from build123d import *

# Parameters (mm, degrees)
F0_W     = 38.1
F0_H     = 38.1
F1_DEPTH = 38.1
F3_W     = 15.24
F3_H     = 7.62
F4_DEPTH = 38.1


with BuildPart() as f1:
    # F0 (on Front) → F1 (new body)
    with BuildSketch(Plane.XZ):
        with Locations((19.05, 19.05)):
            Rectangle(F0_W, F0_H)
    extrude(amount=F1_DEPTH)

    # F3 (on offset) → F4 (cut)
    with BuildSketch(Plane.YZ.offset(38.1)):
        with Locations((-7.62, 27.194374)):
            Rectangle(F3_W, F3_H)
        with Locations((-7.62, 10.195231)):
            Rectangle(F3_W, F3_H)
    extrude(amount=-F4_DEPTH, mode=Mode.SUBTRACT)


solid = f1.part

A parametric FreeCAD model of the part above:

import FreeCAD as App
import Part
import Sketcher

V = App.Vector
Q = App.Units.Quantity


def add_polygon(sketch, points):
    """Adds a closed chain of lines whose ends are joined by coincident constraints."""
    first, n = sketch.GeometryCount, len(points)
    for a, b in zip(points, points[1:] + points[:1]):
        sketch.addGeometry(Part.LineSegment(App.Vector(*a, 0), App.Vector(*b, 0)), False)
    for i in range(n):
        sketch.addConstraint(Sketcher.Constraint("Coincident", first + i, 2, first + (i + 1) % n, 1))

doc = App.newDocument("Part")
params = doc.addObject("Spreadsheet::Sheet", "Params")
for row, (alias, value) in enumerate([
    ("sketch1_width", "1.5 in"),
    ("pad1_length", "1.5 in"),
    ("sketch2_width", "0.6 in"),
    ("sketch2_height", "0.3 in"),
    ("pocket1_length", "1.5 in"),
], start=1):
    params.set(f"A{row}", alias)
    params.set(f"B{row}", "=" + value)
    params.setAlias(f"B{row}", alias)

body = doc.addObject("PartDesign::Body", "Body")

sketch1 = doc.addObject("Sketcher::SketchObject", "Sketch")
body.addObject(sketch1)
sketch1.AttachmentSupport = (doc.XZ_Plane, [""])
sketch1.MapMode = "FlatFace"
add_polygon(sketch1, [(0, 38), (0, 0), (38, 0), (38, 38)])
sketch1.addConstraint(Sketcher.Constraint("Vertical", 0))
sketch1.addConstraint(Sketcher.Constraint("Horizontal", 1))
sketch1.addConstraint(Sketcher.Constraint("Vertical", 2))
sketch1.addConstraint(Sketcher.Constraint("Horizontal", 3))
sketch1.addConstraint(Sketcher.Constraint("Coincident", 0, 2, -1, 1))
sketch1.addConstraint(Sketcher.Constraint("Equal", 3, 0))
sketch1.addConstraint(Sketcher.Constraint("DistanceX", 1, 1, 1, 2, Q("1.5 in")))
sketch1.setExpression("Constraints[10]", "Params.sketch1_width")
pad1 = doc.addObject("PartDesign::Pad", "Pad")
body.addObject(pad1)
pad1.Profile = sketch1
pad1.setExpression("Length", "Params.pad1_length")

sketch2 = doc.addObject("Sketcher::SketchObject", "Sketch001")
body.addObject(sketch2)
sketch2.AttachmentSupport = (doc.YZ_Plane, [""])
sketch2.MapMode = "FlatFace"
sketch2.AttachmentOffset = App.Placement(V(0, 0, 1.5 * 25.4), App.Rotation())
add_polygon(sketch2, [(-15, 31), (-15, 23), (0, 23), (0, 31)])
add_polygon(sketch2, [(-15, 14), (-15, 6), (0, 6), (0, 14)])
sketch2.addConstraint(Sketcher.Constraint("Vertical", 0))
sketch2.addConstraint(Sketcher.Constraint("Horizontal", 1))
sketch2.addConstraint(Sketcher.Constraint("Vertical", 2))
sketch2.addConstraint(Sketcher.Constraint("Horizontal", 3))
sketch2.addConstraint(Sketcher.Constraint("Vertical", 4))
sketch2.addConstraint(Sketcher.Constraint("Horizontal", 5))
sketch2.addConstraint(Sketcher.Constraint("Vertical", 6))
sketch2.addConstraint(Sketcher.Constraint("Horizontal", 7))
sketch2.addConstraint(Sketcher.Constraint("PointOnObject", 1, 2, -2))
sketch2.addConstraint(Sketcher.Constraint("PointOnObject", 5, 2, -2))
sketch2.addConstraint(Sketcher.Constraint("Vertical", 3, 2, 4, 2))
sketch2.addConstraint(Sketcher.Constraint("Equal", 2, 4))
sketch2.addConstraint(Sketcher.Constraint("DistanceX", 1, 1, 1, 2, Q("0.6 in")))
sketch2.addConstraint(Sketcher.Constraint("DistanceY", 0, 2, 0, 1, Q("0.3 in")))
sketch2.addConstraint(Sketcher.Constraint("DistanceY", -1, 1, 4, 2, 6.385231))
sketch2.addConstraint(Sketcher.Constraint("DistanceY", -1, 1, 0, 2, 23.384374))
sketch2.setExpression("Constraints[20]", "Params.sketch2_width")
sketch2.setExpression("Constraints[21]", "Params.sketch2_height")
pocket1 = doc.addObject("PartDesign::Pocket", "Pocket")
body.addObject(pocket1)
pocket1.Profile = sketch2
pocket1.setExpression("Length", "Params.pocket1_length")

doc.recompute()
